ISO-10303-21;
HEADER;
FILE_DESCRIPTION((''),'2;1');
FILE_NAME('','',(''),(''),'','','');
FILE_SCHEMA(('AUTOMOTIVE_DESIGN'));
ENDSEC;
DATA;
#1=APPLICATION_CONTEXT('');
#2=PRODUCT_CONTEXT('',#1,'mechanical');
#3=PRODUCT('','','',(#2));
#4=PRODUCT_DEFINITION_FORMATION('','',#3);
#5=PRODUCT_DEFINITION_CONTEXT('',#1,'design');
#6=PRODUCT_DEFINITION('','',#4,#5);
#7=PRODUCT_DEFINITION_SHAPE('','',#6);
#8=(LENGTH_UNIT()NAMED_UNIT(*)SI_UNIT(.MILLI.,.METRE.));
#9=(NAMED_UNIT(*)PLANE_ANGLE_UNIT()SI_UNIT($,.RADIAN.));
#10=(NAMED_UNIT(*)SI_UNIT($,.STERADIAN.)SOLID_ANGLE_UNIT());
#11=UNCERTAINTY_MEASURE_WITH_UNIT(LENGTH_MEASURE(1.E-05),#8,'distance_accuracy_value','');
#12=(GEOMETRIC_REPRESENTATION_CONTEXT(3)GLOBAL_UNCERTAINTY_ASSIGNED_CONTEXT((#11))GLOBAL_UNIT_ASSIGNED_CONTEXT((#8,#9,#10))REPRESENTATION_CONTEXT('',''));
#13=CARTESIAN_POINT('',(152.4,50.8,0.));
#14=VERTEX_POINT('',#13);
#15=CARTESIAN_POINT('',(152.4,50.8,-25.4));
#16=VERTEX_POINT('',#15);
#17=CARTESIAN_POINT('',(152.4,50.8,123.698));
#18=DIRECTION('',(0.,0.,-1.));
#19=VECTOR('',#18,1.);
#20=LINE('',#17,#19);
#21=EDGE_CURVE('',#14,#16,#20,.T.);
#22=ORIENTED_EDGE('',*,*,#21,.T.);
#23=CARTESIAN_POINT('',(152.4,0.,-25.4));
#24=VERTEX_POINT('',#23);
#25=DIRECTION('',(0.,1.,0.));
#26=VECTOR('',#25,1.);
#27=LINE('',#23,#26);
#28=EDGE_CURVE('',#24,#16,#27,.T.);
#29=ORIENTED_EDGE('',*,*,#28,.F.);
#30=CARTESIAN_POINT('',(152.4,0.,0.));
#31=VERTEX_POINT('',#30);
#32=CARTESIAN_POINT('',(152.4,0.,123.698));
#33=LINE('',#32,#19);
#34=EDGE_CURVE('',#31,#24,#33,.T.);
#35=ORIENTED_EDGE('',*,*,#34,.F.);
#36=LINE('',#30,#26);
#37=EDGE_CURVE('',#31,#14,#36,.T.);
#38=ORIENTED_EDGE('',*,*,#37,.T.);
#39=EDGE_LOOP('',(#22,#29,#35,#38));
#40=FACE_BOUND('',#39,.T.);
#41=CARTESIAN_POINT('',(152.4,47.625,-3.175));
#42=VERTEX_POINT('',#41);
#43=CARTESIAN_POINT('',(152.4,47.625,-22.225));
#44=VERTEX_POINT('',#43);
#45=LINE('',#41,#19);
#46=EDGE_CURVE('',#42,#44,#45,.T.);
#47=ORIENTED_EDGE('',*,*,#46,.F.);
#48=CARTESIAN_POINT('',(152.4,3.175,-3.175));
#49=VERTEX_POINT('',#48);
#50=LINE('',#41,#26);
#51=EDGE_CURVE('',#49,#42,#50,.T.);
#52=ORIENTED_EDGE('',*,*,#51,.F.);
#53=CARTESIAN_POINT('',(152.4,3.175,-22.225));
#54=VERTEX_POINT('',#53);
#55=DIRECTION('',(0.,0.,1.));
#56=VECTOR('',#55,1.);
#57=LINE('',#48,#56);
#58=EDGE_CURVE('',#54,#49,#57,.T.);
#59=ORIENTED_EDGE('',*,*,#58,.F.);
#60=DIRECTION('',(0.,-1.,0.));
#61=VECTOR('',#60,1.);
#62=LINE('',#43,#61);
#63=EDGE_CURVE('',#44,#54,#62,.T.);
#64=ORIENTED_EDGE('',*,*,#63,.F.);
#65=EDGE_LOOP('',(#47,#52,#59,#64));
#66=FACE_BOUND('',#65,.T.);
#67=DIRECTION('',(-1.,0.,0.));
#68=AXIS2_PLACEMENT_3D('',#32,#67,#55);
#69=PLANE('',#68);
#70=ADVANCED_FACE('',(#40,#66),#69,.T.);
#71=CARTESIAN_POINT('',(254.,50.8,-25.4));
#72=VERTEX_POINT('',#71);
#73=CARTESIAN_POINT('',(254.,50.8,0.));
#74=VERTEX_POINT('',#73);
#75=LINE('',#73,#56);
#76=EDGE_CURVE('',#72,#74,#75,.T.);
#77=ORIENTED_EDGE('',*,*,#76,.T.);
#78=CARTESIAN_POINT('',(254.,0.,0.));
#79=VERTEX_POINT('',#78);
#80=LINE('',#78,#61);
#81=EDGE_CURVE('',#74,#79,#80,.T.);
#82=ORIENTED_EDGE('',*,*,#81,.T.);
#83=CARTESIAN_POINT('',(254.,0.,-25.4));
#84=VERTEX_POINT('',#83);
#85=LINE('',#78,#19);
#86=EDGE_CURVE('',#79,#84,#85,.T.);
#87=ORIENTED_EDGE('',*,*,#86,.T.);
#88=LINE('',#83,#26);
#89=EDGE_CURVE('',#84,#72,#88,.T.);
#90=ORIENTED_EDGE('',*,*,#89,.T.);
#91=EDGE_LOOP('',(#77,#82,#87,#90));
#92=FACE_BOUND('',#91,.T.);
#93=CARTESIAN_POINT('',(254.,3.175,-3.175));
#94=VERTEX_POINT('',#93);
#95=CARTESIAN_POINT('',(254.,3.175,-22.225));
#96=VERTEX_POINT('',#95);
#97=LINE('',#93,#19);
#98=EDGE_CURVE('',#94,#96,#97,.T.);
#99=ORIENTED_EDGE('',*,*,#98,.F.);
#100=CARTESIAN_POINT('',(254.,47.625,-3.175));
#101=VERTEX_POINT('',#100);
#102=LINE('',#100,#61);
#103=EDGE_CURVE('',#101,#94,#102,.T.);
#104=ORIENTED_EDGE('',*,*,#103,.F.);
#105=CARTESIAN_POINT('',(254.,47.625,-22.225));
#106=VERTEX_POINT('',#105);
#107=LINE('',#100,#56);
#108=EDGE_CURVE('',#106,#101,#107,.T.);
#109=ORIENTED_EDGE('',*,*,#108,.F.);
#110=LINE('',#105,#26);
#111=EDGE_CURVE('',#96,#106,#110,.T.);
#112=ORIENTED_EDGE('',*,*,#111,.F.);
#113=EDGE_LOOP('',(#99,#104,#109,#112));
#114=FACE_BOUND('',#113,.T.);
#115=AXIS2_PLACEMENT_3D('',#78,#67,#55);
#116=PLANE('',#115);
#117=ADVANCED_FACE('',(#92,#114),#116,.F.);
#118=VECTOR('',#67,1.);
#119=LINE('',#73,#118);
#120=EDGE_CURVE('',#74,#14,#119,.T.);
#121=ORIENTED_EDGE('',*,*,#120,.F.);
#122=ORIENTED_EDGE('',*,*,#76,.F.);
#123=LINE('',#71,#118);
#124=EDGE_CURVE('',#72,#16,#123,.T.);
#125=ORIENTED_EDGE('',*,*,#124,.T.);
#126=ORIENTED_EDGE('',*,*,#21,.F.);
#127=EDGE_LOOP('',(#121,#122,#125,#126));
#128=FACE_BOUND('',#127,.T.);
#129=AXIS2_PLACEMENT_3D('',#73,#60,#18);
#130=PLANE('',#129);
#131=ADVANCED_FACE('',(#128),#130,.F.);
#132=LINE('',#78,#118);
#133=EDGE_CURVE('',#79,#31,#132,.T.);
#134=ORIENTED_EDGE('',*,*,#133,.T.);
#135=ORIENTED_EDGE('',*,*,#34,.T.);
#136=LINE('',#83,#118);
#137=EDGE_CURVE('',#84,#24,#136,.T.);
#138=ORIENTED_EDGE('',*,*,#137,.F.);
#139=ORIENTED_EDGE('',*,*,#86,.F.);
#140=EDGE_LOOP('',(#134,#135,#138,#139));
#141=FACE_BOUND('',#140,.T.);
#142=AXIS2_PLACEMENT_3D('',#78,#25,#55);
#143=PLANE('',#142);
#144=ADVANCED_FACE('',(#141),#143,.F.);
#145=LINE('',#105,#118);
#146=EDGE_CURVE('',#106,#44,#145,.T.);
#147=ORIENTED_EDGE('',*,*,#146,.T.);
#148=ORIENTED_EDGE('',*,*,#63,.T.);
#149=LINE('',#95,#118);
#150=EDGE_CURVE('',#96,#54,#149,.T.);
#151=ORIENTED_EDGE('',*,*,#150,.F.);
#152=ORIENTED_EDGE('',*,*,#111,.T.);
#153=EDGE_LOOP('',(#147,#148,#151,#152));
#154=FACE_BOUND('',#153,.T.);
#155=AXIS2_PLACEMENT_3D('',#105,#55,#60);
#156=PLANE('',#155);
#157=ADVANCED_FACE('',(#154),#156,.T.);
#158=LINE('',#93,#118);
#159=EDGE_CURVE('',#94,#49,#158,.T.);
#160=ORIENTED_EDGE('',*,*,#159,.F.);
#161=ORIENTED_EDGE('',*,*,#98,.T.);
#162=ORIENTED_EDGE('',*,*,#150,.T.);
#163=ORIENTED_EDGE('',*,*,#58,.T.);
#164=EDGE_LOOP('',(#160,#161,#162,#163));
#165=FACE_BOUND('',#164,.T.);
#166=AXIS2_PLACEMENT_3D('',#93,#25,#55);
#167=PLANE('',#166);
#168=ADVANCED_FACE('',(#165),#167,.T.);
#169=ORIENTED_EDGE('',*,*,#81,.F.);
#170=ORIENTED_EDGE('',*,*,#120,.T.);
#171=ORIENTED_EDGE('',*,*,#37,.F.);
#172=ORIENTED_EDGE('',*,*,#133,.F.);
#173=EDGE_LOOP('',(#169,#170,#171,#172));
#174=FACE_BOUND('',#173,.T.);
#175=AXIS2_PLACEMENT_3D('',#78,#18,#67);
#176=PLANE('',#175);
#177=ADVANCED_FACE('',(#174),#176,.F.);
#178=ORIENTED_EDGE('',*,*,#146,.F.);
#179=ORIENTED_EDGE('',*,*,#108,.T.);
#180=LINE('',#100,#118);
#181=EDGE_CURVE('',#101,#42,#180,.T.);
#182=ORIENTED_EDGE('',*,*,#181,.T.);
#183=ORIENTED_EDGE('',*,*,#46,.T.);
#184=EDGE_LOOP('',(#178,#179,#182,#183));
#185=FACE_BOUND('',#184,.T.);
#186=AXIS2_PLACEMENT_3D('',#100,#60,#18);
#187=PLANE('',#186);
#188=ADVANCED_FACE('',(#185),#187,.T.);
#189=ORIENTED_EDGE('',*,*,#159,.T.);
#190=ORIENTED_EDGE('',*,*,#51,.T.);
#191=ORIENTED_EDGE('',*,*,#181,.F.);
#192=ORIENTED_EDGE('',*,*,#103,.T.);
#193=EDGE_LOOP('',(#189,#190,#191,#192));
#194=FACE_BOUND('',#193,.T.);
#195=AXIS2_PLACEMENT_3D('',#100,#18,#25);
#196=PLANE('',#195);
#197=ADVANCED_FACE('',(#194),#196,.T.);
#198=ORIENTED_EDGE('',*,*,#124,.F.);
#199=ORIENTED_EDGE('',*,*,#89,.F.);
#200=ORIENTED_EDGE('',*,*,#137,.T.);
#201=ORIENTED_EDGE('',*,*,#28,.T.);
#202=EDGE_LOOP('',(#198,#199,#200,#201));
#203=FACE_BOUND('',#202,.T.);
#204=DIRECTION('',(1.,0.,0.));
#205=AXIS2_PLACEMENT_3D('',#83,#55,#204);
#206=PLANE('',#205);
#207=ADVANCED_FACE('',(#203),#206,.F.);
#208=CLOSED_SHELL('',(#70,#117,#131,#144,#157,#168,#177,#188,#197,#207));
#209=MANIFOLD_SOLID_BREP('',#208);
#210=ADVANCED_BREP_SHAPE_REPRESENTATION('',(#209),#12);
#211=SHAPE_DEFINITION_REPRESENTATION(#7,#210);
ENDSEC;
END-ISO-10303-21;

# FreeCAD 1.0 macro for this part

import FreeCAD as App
import Part
import Sketcher
from FreeCAD import Vector
Q = App.Units.Quantity


def add_polygon(sketch, points):
    """Adds a closed chain of lines whose ends are joined by coincident constraints."""
    first, n = sketch.GeometryCount, len(points)
    for a, b in zip(points, points[1:] + points[:1]):
        sketch.addGeometry(Part.LineSegment(App.Vector(*a, 0), App.Vector(*b, 0)), False)
    for i in range(n):
        sketch.addConstraint(Sketcher.Constraint("Coincident", first + i, 2, first + (i + 1) % n, 1))

doc = App.newDocument("Part")
body = doc.addObject("PartDesign::Body", "Body")

# Sketch on YZ plane
sketch1 = doc.addObject("Sketcher::SketchObject", "Sketch")
body.addObject(sketch1)
sketch1.AttachmentSupport = (doc.YZ_Plane, [""])
sketch1.MapMode = "FlatFace"
add_polygon(sketch1, [(50.8, 0), (0, 0), (0, -25.4), (50.8, -25.4)])  # lines 0-3
add_polygon(sketch1, [(3.175, -22.225), (3.175, -3.175), (47.625, -3.175), (47.625, -22.225)])  # lines 4-7
sketch1.addConstraint(Sketcher.Constraint("Horizontal", 0))
sketch1.addConstraint(Sketcher.Constraint("Vertical", 1))
sketch1.addConstraint(Sketcher.Constraint("Horizontal", 2))
sketch1.addConstraint(Sketcher.Constraint("Vertical", 3))
sketch1.addConstraint(Sketcher.Constraint("Vertical", 4))
sketch1.addConstraint(Sketcher.Constraint("Horizontal", 5))
sketch1.addConstraint(Sketcher.Constraint("Vertical", 6))
sketch1.addConstraint(Sketcher.Constraint("Horizontal", 7))
sketch1.addConstraint(Sketcher.Constraint("Coincident", 0, 2, -1, 1))
sketch1.addConstraint(Sketcher.Constraint("DistanceX", 0, 2, 0, 1, Q("2 in")))
sketch1.addConstraint(Sketcher.Constraint("DistanceY", 1, 2, 1, 1, Q("1 in")))
sketch1.addConstraint(Sketcher.Constraint("DistanceX", 5, 1, 5, 2, Q("1.75 in")))
sketch1.addConstraint(Sketcher.Constraint("DistanceY", 4, 1, 4, 2, Q("0.75 in")))
sketch1.addConstraint(Sketcher.Constraint("DistanceX", -1, 1, 4, 2, Q("0.125 in")))
sketch1.addConstraint(Sketcher.Constraint("DistanceY", 4, 2, -1, 1, Q("0.125 in")))
pad1 = doc.addObject("PartDesign::Pad", "Pad")
body.addObject(pad1)
pad1.Profile = sketch1
pad1.Length = Q("10 in")

# Sketch on XY plane
sketch2 = doc.addObject("Sketcher::SketchObject", "Sketch001")
body.addObject(sketch2)
sketch2.AttachmentSupport = (doc.XY_Plane, [""])
sketch2.MapMode = "FlatFace"
sketch2.AttachmentOffset = App.Placement(Vector(0, 0, -1 * 25.4), App.Rotation())
add_polygon(sketch2, [(152.4, 0), (0, 0), (0, 50.8), (152.4, 50.8)])  # lines 0-3
sketch2.addConstraint(Sketcher.Constraint("Horizontal", 0))
sketch2.addConstraint(Sketcher.Constraint("Vertical", 1))
sketch2.addConstraint(Sketcher.Constraint("Horizontal", 2))
sketch2.addConstraint(Sketcher.Constraint("Vertical", 3))
sketch2.addConstraint(Sketcher.Constraint("Coincident", 0, 2, -1, 1))
sketch2.addConstraint(Sketcher.Constraint("DistanceX", 0, 2, 0, 1, Q("6 in")))
sketch2.addConstraint(Sketcher.Constraint("DistanceY", 1, 1, 1, 2, Q("2 in")))
pocket1 = doc.addObject("PartDesign::Pocket", "Pocket")
body.addObject(pocket1)
pocket1.Profile = sketch2
pocket1.Length = Q("5.87 in")
pocket1.Reversed = True

doc.recompute()
